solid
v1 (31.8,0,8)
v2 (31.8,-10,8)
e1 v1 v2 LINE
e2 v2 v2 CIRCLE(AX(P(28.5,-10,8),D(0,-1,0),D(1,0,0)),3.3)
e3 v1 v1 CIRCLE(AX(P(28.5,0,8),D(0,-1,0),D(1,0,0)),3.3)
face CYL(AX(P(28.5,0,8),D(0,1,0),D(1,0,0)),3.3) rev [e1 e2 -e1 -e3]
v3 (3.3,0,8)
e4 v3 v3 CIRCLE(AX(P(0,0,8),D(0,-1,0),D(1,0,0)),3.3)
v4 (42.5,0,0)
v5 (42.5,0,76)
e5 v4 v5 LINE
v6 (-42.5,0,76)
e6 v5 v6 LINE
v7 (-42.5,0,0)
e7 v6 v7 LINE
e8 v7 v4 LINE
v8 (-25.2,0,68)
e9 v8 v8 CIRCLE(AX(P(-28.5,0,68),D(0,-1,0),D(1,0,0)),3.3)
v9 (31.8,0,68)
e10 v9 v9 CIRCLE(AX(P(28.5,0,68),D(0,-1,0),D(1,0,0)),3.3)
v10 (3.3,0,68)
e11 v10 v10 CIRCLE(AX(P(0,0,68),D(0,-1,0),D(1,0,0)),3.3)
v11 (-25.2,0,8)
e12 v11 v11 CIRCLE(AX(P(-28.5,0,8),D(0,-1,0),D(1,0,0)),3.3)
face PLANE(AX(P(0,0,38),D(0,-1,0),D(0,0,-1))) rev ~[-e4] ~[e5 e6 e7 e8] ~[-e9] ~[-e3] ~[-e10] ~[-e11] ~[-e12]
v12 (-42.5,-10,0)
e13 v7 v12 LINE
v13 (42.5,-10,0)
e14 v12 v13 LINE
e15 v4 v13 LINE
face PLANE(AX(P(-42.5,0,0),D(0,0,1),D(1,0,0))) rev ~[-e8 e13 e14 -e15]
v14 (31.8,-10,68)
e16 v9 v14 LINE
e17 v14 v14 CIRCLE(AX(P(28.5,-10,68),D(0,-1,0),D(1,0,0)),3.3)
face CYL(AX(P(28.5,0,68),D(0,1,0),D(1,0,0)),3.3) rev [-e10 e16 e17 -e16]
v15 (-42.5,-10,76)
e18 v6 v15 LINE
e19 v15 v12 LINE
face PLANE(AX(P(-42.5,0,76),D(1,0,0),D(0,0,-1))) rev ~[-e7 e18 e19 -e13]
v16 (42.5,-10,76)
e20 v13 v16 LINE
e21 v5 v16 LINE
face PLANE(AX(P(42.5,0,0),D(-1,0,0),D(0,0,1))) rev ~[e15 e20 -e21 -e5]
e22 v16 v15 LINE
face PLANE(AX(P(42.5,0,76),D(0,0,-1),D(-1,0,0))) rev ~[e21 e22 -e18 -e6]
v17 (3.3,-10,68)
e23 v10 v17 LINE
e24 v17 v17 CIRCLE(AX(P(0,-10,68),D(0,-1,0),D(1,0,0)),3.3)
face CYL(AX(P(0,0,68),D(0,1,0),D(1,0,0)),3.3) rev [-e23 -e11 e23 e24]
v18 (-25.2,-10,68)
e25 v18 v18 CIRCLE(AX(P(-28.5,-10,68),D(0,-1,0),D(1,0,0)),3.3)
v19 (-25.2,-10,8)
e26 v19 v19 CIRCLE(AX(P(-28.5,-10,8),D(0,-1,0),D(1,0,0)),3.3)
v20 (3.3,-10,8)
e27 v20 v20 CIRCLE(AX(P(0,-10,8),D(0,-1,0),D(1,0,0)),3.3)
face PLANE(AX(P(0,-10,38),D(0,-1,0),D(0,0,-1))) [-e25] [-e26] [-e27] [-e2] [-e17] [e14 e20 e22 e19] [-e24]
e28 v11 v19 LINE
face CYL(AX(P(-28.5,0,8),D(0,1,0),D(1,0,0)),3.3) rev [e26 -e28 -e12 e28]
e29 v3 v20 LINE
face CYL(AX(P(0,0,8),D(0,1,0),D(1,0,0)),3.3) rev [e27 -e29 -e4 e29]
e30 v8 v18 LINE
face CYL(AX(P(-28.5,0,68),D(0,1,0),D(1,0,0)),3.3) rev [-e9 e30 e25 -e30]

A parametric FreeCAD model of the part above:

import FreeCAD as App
import Part
import Sketcher

doc = App.newDocument("Part")
body = doc.addObject("PartDesign::Body", "Body")

# Sketch on XZ plane
sketch1 = body.newObject("Sketcher::SketchObject", "Sketch")
sketch1.AttachmentSupport = (doc.getObject("XZ_Plane"), [""])
sketch1.MapMode = "FlatFace"
sketch1.addGeometry([
    Part.LineSegment(App.Vector(-42.5, 76, 0), App.Vector(-42.5, 0, 0)),  # 0
    Part.LineSegment(App.Vector(-42.5, 0, 0), App.Vector(42.5, 0, 0)),  # 1
    Part.LineSegment(App.Vector(42.5, 0, 0), App.Vector(42.5, 76, 0)),  # 2
    Part.LineSegment(App.Vector(42.5, 76, 0), App.Vector(-42.5, 76, 0)),  # 3
    Part.Circle(App.Vector(-28.5, 8, 0), App.Vector(0, 0, 1), 3.3),  # 4
    Part.Circle(App.Vector(0, 8, 0), App.Vector(0, 0, 1), 3.3),  # 5
    Part.Circle(App.Vector(28.5, 8, 0), App.Vector(0, 0, 1), 3.3),  # 6
    Part.Circle(App.Vector(-28.5, 68, 0), App.Vector(0, 0, 1), 3.3),  # 7
    Part.Circle(App.Vector(0, 68, 0), App.Vector(0, 0, 1), 3.3),  # 8
    Part.Circle(App.Vector(28.5, 68, 0), App.Vector(0, 0, 1), 3.3),  # 9
], False)
sketch1.addConstraint([
    Sketcher.Constraint("Coincident", 0, 2, 1, 1),
    Sketcher.Constraint("Coincident", 1, 2, 2, 1),
    Sketcher.Constraint("Coincident", 2, 2, 3, 1),
    Sketcher.Constraint("Coincident", 3, 2, 0, 1),
    Sketcher.Constraint("Vertical", 0),
    Sketcher.Constraint("Horizontal", 1),
    Sketcher.Constraint("Vertical", 2),
    Sketcher.Constraint("Horizontal", 3),
    Sketcher.Constraint("Equal", 4, 5),
    Sketcher.Constraint("Equal", 5, 6),
    Sketcher.Constraint("Equal", 6, 7),
    Sketcher.Constraint("Equal", 7, 8),
    Sketcher.Constraint("Equal", 8, 9),
    Sketcher.Constraint("Symmetric", 0, 2, 1, 2, -1, 1),
    Sketcher.Constraint("Symmetric", 4, 3, 6, 3, -2),
    Sketcher.Constraint("Symmetric", 7, 3, 9, 3, -2),
    Sketcher.Constraint("PointOnObject", 5, 3, -2),
    Sketcher.Constraint("PointOnObject", 8, 3, -2),
    Sketcher.Constraint("Horizontal", 4, 3, 5, 3),
    Sketcher.Constraint("Horizontal", 7, 3, 8, 3),
    Sketcher.Constraint("Vertical", 4, 3, 7, 3),
    Sketcher.Constraint("Diameter", 4, 6.6),
    Sketcher.Constraint("DistanceX", 0, 2, -1, 1, 42.5),
    Sketcher.Constraint("DistanceY", 0, 2, 0, 1, 76.0),
    Sketcher.Constraint("DistanceY", -1, 1, 4, 3, 8.0),
    Sketcher.Constraint("DistanceY", -1, 1, 7, 3, 68.0),
    Sketcher.Constraint("DistanceX", 4, 3, 6, 3, 57.0),
])
pad1 = body.newObject("PartDesign::Pad", "Pad")
pad1.Profile = sketch1
pad1.Length = 10

doc.recompute()
